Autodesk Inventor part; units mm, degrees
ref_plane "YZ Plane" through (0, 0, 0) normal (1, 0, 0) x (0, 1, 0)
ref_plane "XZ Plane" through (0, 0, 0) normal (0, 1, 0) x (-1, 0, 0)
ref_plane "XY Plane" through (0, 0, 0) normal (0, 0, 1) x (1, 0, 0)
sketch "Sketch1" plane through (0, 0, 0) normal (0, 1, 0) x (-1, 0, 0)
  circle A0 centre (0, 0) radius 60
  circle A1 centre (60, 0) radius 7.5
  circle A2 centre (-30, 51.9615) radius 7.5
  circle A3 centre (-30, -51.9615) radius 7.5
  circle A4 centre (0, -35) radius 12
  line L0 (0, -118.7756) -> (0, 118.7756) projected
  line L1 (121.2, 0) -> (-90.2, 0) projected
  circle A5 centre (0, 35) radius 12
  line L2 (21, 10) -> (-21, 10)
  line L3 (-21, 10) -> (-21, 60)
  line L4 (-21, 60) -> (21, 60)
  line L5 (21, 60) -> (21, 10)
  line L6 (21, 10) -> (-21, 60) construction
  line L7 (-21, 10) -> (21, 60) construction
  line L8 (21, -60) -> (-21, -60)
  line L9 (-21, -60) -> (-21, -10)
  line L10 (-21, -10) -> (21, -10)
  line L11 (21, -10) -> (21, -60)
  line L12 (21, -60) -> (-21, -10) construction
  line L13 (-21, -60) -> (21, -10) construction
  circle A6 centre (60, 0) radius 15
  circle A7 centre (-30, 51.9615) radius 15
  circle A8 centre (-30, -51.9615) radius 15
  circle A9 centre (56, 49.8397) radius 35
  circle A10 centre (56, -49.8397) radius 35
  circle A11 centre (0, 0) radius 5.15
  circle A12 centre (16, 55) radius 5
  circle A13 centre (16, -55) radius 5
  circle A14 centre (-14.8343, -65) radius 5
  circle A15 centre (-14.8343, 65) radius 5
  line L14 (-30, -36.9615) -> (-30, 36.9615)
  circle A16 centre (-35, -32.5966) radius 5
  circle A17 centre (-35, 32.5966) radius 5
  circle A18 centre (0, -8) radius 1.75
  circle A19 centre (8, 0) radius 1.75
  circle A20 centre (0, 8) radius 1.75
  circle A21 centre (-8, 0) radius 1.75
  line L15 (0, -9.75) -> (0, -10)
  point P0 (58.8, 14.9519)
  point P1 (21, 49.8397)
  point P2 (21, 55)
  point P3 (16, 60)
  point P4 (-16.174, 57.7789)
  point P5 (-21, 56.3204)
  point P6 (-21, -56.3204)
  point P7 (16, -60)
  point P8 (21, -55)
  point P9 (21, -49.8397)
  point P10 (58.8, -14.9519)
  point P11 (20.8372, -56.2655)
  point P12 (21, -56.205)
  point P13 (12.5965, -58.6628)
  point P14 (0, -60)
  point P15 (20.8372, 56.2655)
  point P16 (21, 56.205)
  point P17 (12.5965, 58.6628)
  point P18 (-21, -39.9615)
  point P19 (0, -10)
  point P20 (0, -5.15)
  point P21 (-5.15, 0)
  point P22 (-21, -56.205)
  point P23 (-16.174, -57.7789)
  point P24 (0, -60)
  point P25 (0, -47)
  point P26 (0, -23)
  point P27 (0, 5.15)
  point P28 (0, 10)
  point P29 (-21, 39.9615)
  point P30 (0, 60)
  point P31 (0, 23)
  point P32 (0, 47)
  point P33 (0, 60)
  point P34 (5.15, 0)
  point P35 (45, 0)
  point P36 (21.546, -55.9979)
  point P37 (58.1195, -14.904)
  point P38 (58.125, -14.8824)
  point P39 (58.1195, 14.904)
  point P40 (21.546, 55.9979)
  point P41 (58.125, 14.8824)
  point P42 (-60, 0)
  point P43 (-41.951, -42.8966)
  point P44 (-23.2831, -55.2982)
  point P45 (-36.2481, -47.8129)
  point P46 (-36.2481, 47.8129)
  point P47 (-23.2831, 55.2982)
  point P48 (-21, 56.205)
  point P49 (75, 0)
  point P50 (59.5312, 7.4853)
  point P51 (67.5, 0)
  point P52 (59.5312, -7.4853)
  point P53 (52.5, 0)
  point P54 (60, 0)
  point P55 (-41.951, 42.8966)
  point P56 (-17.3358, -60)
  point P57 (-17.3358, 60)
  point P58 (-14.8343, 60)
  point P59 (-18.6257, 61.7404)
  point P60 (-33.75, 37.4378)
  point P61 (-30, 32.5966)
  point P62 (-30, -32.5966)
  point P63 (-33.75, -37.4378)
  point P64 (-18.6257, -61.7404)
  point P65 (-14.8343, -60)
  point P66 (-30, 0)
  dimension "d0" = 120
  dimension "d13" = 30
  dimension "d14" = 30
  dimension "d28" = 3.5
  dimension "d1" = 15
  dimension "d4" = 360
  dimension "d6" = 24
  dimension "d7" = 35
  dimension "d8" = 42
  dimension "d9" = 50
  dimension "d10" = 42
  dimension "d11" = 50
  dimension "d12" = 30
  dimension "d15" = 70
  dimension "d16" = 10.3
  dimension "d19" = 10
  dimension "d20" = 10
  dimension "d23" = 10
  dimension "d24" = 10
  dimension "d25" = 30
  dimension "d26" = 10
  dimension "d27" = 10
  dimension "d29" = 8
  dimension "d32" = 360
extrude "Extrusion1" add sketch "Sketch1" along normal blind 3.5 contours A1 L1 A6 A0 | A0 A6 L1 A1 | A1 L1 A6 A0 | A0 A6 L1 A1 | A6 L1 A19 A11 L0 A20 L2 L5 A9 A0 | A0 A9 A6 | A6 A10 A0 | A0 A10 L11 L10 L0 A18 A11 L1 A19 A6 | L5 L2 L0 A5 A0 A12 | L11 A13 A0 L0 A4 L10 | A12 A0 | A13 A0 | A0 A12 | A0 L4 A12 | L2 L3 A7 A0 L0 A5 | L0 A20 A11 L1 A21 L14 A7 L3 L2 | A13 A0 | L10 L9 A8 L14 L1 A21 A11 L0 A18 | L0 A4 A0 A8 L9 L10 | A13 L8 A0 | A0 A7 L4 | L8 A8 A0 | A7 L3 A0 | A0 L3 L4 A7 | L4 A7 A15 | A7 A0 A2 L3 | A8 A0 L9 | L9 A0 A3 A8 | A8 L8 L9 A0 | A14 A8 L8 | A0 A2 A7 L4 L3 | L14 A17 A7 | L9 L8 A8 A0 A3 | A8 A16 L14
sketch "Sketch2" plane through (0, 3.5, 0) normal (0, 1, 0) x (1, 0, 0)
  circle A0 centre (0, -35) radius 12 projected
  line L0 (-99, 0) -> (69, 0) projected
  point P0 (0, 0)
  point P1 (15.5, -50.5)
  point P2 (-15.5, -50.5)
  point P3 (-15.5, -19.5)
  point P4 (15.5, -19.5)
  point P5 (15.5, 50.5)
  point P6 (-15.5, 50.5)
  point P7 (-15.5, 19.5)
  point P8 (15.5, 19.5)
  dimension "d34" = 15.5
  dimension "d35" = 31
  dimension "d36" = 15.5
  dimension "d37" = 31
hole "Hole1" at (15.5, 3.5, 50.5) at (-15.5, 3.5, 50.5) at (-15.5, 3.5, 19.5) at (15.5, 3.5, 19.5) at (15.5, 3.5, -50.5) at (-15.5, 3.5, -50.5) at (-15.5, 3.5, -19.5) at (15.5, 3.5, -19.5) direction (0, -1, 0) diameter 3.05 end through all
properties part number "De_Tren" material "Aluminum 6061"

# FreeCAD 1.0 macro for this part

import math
import FreeCAD as App
import Part
import Sketcher
from FreeCAD import Vector

doc = App.newDocument("Part")
body = doc.addObject("PartDesign::Body", "Body")

# Sketch on XZ plane
sketch1 = body.newObject("Sketcher::SketchObject", "Sketch")
sketch1.AttachmentSupport = (doc.getObject("XZ_Plane"), [""])
sketch1.MapMode = "FlatFace"
sketch1.addGeometry([
    Part.LineSegment(Vector(-21, 49.8, 0), Vector(-21, 55, 0)),  # 0
    Part.ArcOfCircle(Part.Circle(Vector(-16, 55, 0), Vector(0, 0, 1), 5), math.radians(90), math.radians(180)),  # 1
    Part.LineSegment(Vector(-16, 60, 0), Vector(14.8, 60, 0)),  # 2
    Part.ArcOfCircle(Part.Circle(Vector(14.8, 65, 0), Vector(0, 0, 1), 5), math.radians(-90), math.radians(-41)),  # 3
    Part.ArcOfCircle(Part.Circle(Vector(30, 52, 0), Vector(0, 0, 1), 15), math.radians(-76), math.radians(139)),  # 4
    Part.ArcOfCircle(Part.Circle(Vector(35, 32.6, 0), Vector(0, 0, 1), 5), math.radians(104), math.radians(180)),  # 5
    Part.LineSegment(Vector(30, 32.6, 0), Vector(30, -32.6, 0)),  # 6
    Part.ArcOfCircle(Part.Circle(Vector(35, -32.6, 0), Vector(0, 0, 1), 5), math.radians(180), math.radians(256)),  # 7
    Part.ArcOfCircle(Part.Circle(Vector(30, -52, 0), Vector(0, 0, 1), 15), math.radians(-139), math.radians(76)),  # 8
    Part.ArcOfCircle(Part.Circle(Vector(14.8, -65, 0), Vector(0, 0, 1), 5), math.radians(41), math.radians(90)),  # 9
    Part.LineSegment(Vector(14.8, -60, 0), Vector(-16, -60, 0)),  # 10
    Part.ArcOfCircle(Part.Circle(Vector(-16, -55, 0), Vector(0, 0, 1), 5), math.radians(180), math.radians(270)),  # 11
    Part.LineSegment(Vector(-21, -55, 0), Vector(-21, -49.8, 0)),  # 12
    Part.ArcOfCircle(Part.Circle(Vector(-56, -49.8, 0), Vector(0, 0, 1), 35), math.radians(0), math.radians(95)),  # 13
    Part.ArcOfCircle(Part.Circle(Vector(-60, 0, 0), Vector(0, 0, 1), 15), math.radians(85), math.radians(275)),  # 14
    Part.ArcOfCircle(Part.Circle(Vector(-56, 49.8, 0), Vector(0, 0, 1), 35), math.radians(-95), math.radians(0)),  # 15
    Part.Circle(Vector(-60, 0, 0), Vector(0, 0, 1), 7.5),  # 16
    Part.Circle(Vector(-8, 0, 0), Vector(0, 0, 1), 1.8),  # 17
    Part.Circle(Vector(0, 0, 0), Vector(0, 0, 1), 5.2),  # 18
    Part.Circle(Vector(0, 8, 0), Vector(0, 0, 1), 1.8),  # 19
    Part.Circle(Vector(0, -8, 0), Vector(0, 0, 1), 1.8),  # 20
    Part.Circle(Vector(8, 0, 0), Vector(0, 0, 1), 1.8),  # 21
    Part.Circle(Vector(0, 35, 0), Vector(0, 0, 1), 12),  # 22
    Part.Circle(Vector(0, -35, 0), Vector(0, 0, 1), 12),  # 23
    Part.Circle(Vector(30, 52, 0), Vector(0, 0, 1), 7.5),  # 24
    Part.Circle(Vector(30, -52, 0), Vector(0, 0, 1), 7.5),  # 25
], False)
sketch1.addConstraint([
    Sketcher.Constraint("Tangent", 0, 2, 1, 2),
    Sketcher.Constraint("Tangent", 1, 1, 2, 1),
    Sketcher.Constraint("Tangent", 2, 2, 3, 1),
    Sketcher.Constraint("Tangent", 3, 2, 4, 2),
    Sketcher.Constraint("Tangent", 4, 1, 5, 1),
    Sketcher.Constraint("Tangent", 5, 2, 6, 1),
    Sketcher.Constraint("Tangent", 6, 2, 7, 1),
    Sketcher.Constraint("Tangent", 7, 2, 8, 2),
    Sketcher.Constraint("Tangent", 8, 1, 9, 1),
    Sketcher.Constraint("Tangent", 9, 2, 10, 1),
    Sketcher.Constraint("Tangent", 10, 2, 11, 2),
    Sketcher.Constraint("Tangent", 11, 1, 12, 1),
    Sketcher.Constraint("Tangent", 12, 2, 13, 1),
    Sketcher.Constraint("Tangent", 13, 2, 14, 2),
    Sketcher.Constraint("Tangent", 14, 1, 15, 1),
    Sketcher.Constraint("Tangent", 15, 2, 0, 1),
    Sketcher.Constraint("Vertical", 0),
    Sketcher.Constraint("Horizontal", 2),
    Sketcher.Constraint("Vertical", 6),
    Sketcher.Constraint("Horizontal", 10),
    Sketcher.Constraint("Vertical", 12),
    Sketcher.Constraint("Coincident", 18, 3, -1, 1),
    Sketcher.Constraint("Coincident", 16, 3, 14, 3),
    Sketcher.Constraint("Coincident", 24, 3, 4, 3),
    Sketcher.Constraint("Coincident", 25, 3, 8, 3),
    Sketcher.Constraint("Equal", 1, 3),
    Sketcher.Constraint("Equal", 3, 5),
    Sketcher.Constraint("Equal", 5, 7),
    Sketcher.Constraint("Equal", 4, 8),
    Sketcher.Constraint("Equal", 7, 9),
    Sketcher.Constraint("Equal", 9, 11),
    Sketcher.Constraint("Equal", 8, 14),
    Sketcher.Constraint("Equal", 13, 15),
    Sketcher.Constraint("Equal", 17, 19),
    Sketcher.Constraint("Equal", 19, 20),
    Sketcher.Constraint("Equal", 20, 21),
    Sketcher.Constraint("Equal", 22, 23),
    Sketcher.Constraint("Equal", 16, 24),
    Sketcher.Constraint("Equal", 24, 25),
    Sketcher.Constraint("Symmetric", 19, 3, 20, 3, -1, 1),
    Sketcher.Constraint("Symmetric", 17, 3, 21, 3, -1, 1),
    Sketcher.Constraint("Symmetric", 22, 3, 23, 3, -1, 1),
    Sketcher.Constraint("Symmetric", 4, 3, 8, 3, -1),
    Sketcher.Constraint("Symmetric", 1, 3, 11, 3, -1),
    Sketcher.Constraint("PointOnObject", 14, 3, -1),
    Sketcher.Constraint("PointOnObject", 17, 3, -1),
    Sketcher.Constraint("PointOnObject", 19, 3, -2),
    Sketcher.Constraint("PointOnObject", 22, 3, -2),
    Sketcher.Constraint("Vertical", 25, 3, 5, 2),
    Sketcher.Constraint("Diameter", 16, 15.0),
    Sketcher.Constraint("Diameter", 22, 24.0),
    Sketcher.Constraint("Radius", 1, 5.0),
    Sketcher.Constraint("Radius", 4, 15.0),
    Sketcher.Constraint("Radius", 13, 35.0),
    Sketcher.Constraint("Diameter", 17, 3.5),
    Sketcher.Constraint("Diameter", 18, 10.3),
    Sketcher.Constraint("DistanceX", -1, 1, 4, 3, 30.0),
    Sketcher.Constraint("DistanceX", 17, 3, -1, 1, 8.0),
    Sketcher.Constraint("DistanceY", -1, 1, 19, 3, 8.0),
    Sketcher.Constraint("DistanceY", -1, 1, 22, 3, 35.0),
    Sketcher.Constraint("DistanceY", 9, 3, 1, 3, 120.0),
    Sketcher.Constraint("DistanceX", 1, 3, 17, 3, 8.0),
    Sketcher.Constraint("DistanceX", 14, 3, -1, 1, 60.0),
    Sketcher.Constraint("DistanceX", 2, 1, 2, 2, 30.8343),
])
pad1 = body.newObject("PartDesign::Pad", "Pad")
pad1.Profile = sketch1
pad1.Length = 3.5
pad1.Reversed = True

# Sketch on XZ plane
sketch2 = body.newObject("Sketcher::SketchObject", "Sketch001")
sketch2.AttachmentSupport = (doc.getObject("XZ_Plane"), [""])
sketch2.MapMode = "FlatFace"
sketch2.AttachmentOffset = App.Placement(Vector(0, 0, -3.5), App.Rotation())
sketch2.addGeometry([
    Part.Circle(Vector(15.5, 50.5, 0), Vector(0, 0, 1), 1.5),  # 0
    Part.Circle(Vector(-15.5, 50.5, 0), Vector(0, 0, 1), 1.5),  # 1
    Part.Circle(Vector(-15.5, 19.5, 0), Vector(0, 0, 1), 1.5),  # 2
    Part.Circle(Vector(15.5, 19.5, 0), Vector(0, 0, 1), 1.5),  # 3
    Part.Circle(Vector(15.5, -50.5, 0), Vector(0, 0, 1), 1.5),  # 4
    Part.Circle(Vector(-15.5, -50.5, 0), Vector(0, 0, 1), 1.5),  # 5
    Part.Circle(Vector(-15.5, -19.5, 0), Vector(0, 0, 1), 1.5),  # 6
    Part.Circle(Vector(15.5, -19.5, 0), Vector(0, 0, 1), 1.5),  # 7
], False)
sketch2.addConstraint([
    Sketcher.Constraint("Equal", 0, 1),
    Sketcher.Constraint("Equal", 1, 2),
    Sketcher.Constraint("Equal", 2, 3),
    Sketcher.Constraint("Equal", 3, 4),
    Sketcher.Constraint("Equal", 4, 5),
    Sketcher.Constraint("Equal", 5, 6),
    Sketcher.Constraint("Equal", 6, 7),
    Sketcher.Constraint("Symmetric", 1, 3, 4, 3, -1, 1),
    Sketcher.Constraint("Symmetric", 0, 3, 5, 3, -1, 1),
    Sketcher.Constraint("Symmetric", 3, 3, 6, 3, -1, 1),
    Sketcher.Constraint("Symmetric", 2, 3, 7, 3, -1, 1),
    Sketcher.Constraint("Symmetric", 0, 3, 1, 3, -2),
    Sketcher.Constraint("Symmetric", 2, 3, 3, 3, -2),
    Sketcher.Constraint("Vertical", 1, 3, 2, 3),
    Sketcher.Constraint("Diameter", 0, 3.05),
    Sketcher.Constraint("DistanceX", 1, 3, 0, 3, 31.0),
    Sketcher.Constraint("DistanceY", 2, 3, 1, 3, 31.0),
    Sketcher.Constraint("DistanceY", 4, 3, 3, 3, 70.0),
])
doc.recompute()
hole = body.newObject("PartDesign::Hole", "Hole")
hole.Profile = sketch2
hole.ThreadType = "None"
hole.Diameter = 3.05
hole.DepthType = "ThroughAll"
hole.Reversed = True

doc.recompute()
